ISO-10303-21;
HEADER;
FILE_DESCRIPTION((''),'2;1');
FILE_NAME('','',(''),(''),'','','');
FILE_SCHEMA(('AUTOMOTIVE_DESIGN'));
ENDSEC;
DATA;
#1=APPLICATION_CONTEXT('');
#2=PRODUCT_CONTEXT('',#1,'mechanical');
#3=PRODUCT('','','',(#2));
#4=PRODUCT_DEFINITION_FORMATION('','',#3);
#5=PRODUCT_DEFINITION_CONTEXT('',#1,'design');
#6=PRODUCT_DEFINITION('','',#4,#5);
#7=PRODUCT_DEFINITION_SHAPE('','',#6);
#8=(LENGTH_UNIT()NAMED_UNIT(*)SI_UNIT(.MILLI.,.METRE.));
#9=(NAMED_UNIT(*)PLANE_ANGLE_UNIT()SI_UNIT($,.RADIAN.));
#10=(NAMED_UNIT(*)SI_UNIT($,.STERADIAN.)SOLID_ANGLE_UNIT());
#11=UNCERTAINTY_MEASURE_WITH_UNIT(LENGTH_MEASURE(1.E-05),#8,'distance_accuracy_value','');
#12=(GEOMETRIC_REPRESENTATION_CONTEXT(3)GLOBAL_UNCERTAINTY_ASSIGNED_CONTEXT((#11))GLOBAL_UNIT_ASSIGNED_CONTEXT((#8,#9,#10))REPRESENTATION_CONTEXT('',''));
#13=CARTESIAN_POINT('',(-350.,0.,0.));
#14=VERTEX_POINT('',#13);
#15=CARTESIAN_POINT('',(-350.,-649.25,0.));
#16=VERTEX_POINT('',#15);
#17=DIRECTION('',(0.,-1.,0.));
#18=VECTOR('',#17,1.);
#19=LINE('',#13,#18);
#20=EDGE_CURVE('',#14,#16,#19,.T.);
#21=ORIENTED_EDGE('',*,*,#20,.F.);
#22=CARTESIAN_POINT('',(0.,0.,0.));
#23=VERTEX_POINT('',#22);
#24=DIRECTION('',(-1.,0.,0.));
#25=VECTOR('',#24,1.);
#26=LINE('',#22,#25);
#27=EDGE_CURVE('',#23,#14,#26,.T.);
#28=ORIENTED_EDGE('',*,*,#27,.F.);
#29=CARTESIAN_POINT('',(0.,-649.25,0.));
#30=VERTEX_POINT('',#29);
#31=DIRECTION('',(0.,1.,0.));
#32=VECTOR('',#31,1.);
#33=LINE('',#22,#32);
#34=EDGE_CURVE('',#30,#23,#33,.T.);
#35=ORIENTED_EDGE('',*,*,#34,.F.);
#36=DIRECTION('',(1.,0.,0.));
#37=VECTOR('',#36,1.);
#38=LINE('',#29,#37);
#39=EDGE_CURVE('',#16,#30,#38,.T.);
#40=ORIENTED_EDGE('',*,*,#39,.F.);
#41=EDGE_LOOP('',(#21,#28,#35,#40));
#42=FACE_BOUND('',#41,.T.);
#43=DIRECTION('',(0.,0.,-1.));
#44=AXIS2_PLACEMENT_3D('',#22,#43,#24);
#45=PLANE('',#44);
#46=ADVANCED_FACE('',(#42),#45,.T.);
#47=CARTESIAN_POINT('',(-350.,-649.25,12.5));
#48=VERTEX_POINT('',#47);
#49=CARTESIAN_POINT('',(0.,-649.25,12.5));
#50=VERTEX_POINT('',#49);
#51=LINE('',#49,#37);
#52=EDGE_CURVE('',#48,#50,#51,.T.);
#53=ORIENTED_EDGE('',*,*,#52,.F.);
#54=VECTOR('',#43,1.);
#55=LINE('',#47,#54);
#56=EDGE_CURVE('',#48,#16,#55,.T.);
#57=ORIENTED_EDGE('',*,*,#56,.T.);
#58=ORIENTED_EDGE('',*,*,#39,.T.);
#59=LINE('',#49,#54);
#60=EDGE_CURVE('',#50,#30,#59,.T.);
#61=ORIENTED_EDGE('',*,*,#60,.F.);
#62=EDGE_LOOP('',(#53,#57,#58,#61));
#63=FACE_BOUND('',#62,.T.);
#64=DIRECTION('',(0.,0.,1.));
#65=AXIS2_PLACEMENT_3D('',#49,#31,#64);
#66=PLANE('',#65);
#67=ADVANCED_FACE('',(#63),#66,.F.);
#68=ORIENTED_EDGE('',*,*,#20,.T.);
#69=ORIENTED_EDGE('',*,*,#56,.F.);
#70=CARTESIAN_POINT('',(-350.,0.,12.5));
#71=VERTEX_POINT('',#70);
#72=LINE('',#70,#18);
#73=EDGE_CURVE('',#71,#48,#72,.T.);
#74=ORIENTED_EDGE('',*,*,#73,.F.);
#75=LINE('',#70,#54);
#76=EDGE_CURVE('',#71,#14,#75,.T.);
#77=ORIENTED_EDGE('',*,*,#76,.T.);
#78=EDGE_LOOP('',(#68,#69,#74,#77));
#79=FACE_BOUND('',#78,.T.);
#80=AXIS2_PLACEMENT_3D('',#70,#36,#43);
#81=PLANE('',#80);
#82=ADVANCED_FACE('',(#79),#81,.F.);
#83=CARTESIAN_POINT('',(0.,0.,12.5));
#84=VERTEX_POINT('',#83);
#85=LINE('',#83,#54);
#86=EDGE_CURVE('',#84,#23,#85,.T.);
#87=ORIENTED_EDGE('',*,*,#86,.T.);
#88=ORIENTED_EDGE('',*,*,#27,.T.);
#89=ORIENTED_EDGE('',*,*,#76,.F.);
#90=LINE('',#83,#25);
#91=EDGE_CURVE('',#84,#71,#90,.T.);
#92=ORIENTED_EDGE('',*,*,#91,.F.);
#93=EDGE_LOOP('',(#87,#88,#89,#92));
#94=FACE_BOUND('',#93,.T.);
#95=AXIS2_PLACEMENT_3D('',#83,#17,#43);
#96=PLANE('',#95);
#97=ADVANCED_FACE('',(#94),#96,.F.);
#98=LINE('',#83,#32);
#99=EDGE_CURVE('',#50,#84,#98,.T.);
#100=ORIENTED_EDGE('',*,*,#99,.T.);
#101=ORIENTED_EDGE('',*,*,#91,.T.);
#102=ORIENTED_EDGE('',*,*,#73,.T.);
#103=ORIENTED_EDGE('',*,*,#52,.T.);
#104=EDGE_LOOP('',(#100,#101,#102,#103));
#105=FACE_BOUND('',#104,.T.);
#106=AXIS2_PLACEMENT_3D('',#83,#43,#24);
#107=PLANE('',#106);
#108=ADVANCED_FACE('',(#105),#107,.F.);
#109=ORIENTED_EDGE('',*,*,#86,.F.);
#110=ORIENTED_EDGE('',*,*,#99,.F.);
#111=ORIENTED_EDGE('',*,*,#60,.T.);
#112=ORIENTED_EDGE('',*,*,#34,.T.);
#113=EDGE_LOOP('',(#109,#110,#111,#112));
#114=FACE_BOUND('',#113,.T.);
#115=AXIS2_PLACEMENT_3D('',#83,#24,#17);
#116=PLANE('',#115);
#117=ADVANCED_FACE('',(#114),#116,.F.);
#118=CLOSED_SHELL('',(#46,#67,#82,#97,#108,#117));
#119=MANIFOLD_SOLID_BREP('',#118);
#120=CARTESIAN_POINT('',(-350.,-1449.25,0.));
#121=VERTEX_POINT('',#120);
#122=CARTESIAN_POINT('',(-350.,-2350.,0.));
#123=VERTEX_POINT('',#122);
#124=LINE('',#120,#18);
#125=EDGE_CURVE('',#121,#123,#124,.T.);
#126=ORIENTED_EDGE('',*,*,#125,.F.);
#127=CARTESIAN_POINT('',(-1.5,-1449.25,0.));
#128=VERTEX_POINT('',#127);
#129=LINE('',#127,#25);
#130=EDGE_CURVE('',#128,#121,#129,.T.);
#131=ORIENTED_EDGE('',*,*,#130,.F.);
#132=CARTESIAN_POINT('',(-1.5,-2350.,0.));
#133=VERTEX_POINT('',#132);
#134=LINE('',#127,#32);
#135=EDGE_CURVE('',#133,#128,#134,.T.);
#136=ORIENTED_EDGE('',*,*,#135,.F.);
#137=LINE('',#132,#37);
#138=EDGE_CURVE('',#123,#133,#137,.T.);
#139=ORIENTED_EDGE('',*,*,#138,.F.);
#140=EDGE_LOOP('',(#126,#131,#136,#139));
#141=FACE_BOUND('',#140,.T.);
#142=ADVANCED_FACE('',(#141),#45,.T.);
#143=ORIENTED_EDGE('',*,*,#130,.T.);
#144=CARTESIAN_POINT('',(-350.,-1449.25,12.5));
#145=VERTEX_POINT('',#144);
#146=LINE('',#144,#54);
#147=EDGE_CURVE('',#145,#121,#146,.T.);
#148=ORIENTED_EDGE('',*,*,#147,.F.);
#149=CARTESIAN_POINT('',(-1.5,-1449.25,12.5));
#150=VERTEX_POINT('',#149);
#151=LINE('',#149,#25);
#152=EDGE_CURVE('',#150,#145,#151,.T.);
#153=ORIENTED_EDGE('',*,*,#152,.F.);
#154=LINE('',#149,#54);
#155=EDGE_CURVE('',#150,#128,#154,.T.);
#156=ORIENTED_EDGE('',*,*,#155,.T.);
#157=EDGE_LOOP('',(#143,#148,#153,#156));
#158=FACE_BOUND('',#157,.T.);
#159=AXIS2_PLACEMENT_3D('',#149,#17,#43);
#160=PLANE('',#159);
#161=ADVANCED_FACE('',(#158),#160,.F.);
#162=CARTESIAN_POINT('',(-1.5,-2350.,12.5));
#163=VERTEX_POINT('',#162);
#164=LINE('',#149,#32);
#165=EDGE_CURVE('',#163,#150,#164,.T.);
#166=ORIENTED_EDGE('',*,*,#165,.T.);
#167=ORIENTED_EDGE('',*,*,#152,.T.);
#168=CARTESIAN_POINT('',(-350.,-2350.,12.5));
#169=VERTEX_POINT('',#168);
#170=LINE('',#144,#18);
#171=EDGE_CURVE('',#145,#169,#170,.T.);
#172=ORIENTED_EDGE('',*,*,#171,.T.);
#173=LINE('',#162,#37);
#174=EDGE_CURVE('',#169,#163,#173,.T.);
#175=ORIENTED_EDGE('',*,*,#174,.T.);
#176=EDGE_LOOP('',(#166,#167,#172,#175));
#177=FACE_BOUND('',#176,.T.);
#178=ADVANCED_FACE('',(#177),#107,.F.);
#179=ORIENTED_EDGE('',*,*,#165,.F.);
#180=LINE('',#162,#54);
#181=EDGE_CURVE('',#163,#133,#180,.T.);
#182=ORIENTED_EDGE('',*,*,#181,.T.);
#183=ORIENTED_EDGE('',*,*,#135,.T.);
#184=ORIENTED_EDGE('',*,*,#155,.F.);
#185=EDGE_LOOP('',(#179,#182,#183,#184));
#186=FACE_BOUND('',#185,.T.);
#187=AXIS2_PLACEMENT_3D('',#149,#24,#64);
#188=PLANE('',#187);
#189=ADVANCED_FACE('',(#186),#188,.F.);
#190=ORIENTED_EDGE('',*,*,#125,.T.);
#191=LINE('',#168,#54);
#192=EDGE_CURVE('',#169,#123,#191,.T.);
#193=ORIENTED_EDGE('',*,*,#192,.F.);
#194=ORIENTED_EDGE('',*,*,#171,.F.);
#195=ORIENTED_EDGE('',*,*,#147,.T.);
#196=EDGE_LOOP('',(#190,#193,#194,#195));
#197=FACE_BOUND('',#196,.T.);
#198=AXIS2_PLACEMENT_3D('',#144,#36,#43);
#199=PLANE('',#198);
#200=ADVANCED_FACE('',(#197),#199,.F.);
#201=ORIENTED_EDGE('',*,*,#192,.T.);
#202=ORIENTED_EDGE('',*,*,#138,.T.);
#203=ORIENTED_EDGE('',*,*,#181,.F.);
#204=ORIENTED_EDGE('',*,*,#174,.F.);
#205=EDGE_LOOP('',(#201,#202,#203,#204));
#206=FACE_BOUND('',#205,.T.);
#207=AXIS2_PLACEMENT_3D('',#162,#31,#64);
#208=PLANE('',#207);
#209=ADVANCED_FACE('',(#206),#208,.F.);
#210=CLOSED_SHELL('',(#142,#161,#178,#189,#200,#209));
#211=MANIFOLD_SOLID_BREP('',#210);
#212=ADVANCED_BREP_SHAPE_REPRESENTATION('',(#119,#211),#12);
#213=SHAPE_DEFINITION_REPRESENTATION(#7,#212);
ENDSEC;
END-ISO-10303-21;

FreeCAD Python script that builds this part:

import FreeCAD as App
import Part
import Sketcher
from FreeCAD import Vector
Q = App.Units.Quantity

doc = App.newDocument("Part")
body = doc.addObject("PartDesign::Body", "Body")

sketch1 = body.newObject("Sketcher::SketchObject", "Sketch")
sketch1.AttachmentSupport = (doc.getObject("XY_Plane"), [""])
sketch1.MapMode = "FlatFace"
sketch1.addGeometry(Part.LineSegment(Vector(-350, 0, 0), Vector(-350, -649.25, 0)), False)
sketch1.addGeometry(Part.LineSegment(Vector(-350, -649.25, 0), Vector(0, -649.25, 0)), False)
sketch1.addGeometry(Part.LineSegment(Vector(0, -649.25, 0), Vector(0, 0, 0)), False)
sketch1.addGeometry(Part.LineSegment(Vector(0, 0, 0), Vector(-350, 0, 0)), False)
sketch1.addConstraint(Sketcher.Constraint("Coincident", 0, 2, 1, 1))
sketch1.addConstraint(Sketcher.Constraint("Coincident", 1, 2, 2, 1))
sketch1.addConstraint(Sketcher.Constraint("Coincident", 2, 2, 3, 1))
sketch1.addConstraint(Sketcher.Constraint("Coincident", 3, 2, 0, 1))
sketch1.addConstraint(Sketcher.Constraint("Vertical", 0))
sketch1.addConstraint(Sketcher.Constraint("Horizontal", 1))
sketch1.addConstraint(Sketcher.Constraint("Vertical", 2))
sketch1.addConstraint(Sketcher.Constraint("Horizontal", 3))
sketch1.addConstraint(Sketcher.Constraint("Coincident", 2, 2, -1, 1))
sketch1.addConstraint(Sketcher.Constraint("DistanceX", 1, 1, 1, 2, Q("350 mm")))
sketch1.addConstraint(Sketcher.Constraint("DistanceY", 0, 2, 0, 1, Q("649.25 mm")))
pad1 = body.newObject("PartDesign::Pad", "Pad")
pad1.Profile = sketch1
pad1.Length = 12.5
body2 = doc.addObject("PartDesign::Body", "Body001")

sketch2 = body2.newObject("Sketcher::SketchObject", "Sketch001")
sketch2.AttachmentSupport = (doc.getObject("XY_Plane001"), [""])
sketch2.MapMode = "FlatFace"
sketch2.addGeometry(Part.LineSegment(Vector(-350, -1449.25, 0), Vector(-350, -2350, 0)), False)
sketch2.addGeometry(Part.LineSegment(Vector(-350, -2350, 0), Vector(-1.5, -2350, 0)), False)
sketch2.addGeometry(Part.LineSegment(Vector(-1.5, -2350, 0), Vector(-1.5, -1449.25, 0)), False)
sketch2.addGeometry(Part.LineSegment(Vector(-1.5, -1449.25, 0), Vector(-350, -1449.25, 0)), False)
sketch2.addConstraint(Sketcher.Constraint("Coincident", 0, 2, 1, 1))
sketch2.addConstraint(Sketcher.Constraint("Coincident", 1, 2, 2, 1))
sketch2.addConstraint(Sketcher.Constraint("Coincident", 2, 2, 3, 1))
sketch2.addConstraint(Sketcher.Constraint("Coincident", 3, 2, 0, 1))
sketch2.addConstraint(Sketcher.Constraint("Vertical", 0))
sketch2.addConstraint(Sketcher.Constraint("Horizontal", 1))
sketch2.addConstraint(Sketcher.Constraint("Vertical", 2))
sketch2.addConstraint(Sketcher.Constraint("Horizontal", 3))
sketch2.addConstraint(Sketcher.Constraint("DistanceX", 1, 1, 1, 2, Q("348.5 mm")))
sketch2.addConstraint(Sketcher.Constraint("DistanceX", 0, 2, -1, 1, Q("350 mm")))
sketch2.addConstraint(Sketcher.Constraint("DistanceY", 0, 2, -1, 1, Q("2350 mm")))
sketch2.addConstraint(Sketcher.Constraint("DistanceY", 0, 2, 0, 1, Q("900.75 mm")))
pad2 = body2.newObject("PartDesign::Pad", "Pad001")
pad2.Profile = sketch2
pad2.Length = 12.5

doc.recompute()
